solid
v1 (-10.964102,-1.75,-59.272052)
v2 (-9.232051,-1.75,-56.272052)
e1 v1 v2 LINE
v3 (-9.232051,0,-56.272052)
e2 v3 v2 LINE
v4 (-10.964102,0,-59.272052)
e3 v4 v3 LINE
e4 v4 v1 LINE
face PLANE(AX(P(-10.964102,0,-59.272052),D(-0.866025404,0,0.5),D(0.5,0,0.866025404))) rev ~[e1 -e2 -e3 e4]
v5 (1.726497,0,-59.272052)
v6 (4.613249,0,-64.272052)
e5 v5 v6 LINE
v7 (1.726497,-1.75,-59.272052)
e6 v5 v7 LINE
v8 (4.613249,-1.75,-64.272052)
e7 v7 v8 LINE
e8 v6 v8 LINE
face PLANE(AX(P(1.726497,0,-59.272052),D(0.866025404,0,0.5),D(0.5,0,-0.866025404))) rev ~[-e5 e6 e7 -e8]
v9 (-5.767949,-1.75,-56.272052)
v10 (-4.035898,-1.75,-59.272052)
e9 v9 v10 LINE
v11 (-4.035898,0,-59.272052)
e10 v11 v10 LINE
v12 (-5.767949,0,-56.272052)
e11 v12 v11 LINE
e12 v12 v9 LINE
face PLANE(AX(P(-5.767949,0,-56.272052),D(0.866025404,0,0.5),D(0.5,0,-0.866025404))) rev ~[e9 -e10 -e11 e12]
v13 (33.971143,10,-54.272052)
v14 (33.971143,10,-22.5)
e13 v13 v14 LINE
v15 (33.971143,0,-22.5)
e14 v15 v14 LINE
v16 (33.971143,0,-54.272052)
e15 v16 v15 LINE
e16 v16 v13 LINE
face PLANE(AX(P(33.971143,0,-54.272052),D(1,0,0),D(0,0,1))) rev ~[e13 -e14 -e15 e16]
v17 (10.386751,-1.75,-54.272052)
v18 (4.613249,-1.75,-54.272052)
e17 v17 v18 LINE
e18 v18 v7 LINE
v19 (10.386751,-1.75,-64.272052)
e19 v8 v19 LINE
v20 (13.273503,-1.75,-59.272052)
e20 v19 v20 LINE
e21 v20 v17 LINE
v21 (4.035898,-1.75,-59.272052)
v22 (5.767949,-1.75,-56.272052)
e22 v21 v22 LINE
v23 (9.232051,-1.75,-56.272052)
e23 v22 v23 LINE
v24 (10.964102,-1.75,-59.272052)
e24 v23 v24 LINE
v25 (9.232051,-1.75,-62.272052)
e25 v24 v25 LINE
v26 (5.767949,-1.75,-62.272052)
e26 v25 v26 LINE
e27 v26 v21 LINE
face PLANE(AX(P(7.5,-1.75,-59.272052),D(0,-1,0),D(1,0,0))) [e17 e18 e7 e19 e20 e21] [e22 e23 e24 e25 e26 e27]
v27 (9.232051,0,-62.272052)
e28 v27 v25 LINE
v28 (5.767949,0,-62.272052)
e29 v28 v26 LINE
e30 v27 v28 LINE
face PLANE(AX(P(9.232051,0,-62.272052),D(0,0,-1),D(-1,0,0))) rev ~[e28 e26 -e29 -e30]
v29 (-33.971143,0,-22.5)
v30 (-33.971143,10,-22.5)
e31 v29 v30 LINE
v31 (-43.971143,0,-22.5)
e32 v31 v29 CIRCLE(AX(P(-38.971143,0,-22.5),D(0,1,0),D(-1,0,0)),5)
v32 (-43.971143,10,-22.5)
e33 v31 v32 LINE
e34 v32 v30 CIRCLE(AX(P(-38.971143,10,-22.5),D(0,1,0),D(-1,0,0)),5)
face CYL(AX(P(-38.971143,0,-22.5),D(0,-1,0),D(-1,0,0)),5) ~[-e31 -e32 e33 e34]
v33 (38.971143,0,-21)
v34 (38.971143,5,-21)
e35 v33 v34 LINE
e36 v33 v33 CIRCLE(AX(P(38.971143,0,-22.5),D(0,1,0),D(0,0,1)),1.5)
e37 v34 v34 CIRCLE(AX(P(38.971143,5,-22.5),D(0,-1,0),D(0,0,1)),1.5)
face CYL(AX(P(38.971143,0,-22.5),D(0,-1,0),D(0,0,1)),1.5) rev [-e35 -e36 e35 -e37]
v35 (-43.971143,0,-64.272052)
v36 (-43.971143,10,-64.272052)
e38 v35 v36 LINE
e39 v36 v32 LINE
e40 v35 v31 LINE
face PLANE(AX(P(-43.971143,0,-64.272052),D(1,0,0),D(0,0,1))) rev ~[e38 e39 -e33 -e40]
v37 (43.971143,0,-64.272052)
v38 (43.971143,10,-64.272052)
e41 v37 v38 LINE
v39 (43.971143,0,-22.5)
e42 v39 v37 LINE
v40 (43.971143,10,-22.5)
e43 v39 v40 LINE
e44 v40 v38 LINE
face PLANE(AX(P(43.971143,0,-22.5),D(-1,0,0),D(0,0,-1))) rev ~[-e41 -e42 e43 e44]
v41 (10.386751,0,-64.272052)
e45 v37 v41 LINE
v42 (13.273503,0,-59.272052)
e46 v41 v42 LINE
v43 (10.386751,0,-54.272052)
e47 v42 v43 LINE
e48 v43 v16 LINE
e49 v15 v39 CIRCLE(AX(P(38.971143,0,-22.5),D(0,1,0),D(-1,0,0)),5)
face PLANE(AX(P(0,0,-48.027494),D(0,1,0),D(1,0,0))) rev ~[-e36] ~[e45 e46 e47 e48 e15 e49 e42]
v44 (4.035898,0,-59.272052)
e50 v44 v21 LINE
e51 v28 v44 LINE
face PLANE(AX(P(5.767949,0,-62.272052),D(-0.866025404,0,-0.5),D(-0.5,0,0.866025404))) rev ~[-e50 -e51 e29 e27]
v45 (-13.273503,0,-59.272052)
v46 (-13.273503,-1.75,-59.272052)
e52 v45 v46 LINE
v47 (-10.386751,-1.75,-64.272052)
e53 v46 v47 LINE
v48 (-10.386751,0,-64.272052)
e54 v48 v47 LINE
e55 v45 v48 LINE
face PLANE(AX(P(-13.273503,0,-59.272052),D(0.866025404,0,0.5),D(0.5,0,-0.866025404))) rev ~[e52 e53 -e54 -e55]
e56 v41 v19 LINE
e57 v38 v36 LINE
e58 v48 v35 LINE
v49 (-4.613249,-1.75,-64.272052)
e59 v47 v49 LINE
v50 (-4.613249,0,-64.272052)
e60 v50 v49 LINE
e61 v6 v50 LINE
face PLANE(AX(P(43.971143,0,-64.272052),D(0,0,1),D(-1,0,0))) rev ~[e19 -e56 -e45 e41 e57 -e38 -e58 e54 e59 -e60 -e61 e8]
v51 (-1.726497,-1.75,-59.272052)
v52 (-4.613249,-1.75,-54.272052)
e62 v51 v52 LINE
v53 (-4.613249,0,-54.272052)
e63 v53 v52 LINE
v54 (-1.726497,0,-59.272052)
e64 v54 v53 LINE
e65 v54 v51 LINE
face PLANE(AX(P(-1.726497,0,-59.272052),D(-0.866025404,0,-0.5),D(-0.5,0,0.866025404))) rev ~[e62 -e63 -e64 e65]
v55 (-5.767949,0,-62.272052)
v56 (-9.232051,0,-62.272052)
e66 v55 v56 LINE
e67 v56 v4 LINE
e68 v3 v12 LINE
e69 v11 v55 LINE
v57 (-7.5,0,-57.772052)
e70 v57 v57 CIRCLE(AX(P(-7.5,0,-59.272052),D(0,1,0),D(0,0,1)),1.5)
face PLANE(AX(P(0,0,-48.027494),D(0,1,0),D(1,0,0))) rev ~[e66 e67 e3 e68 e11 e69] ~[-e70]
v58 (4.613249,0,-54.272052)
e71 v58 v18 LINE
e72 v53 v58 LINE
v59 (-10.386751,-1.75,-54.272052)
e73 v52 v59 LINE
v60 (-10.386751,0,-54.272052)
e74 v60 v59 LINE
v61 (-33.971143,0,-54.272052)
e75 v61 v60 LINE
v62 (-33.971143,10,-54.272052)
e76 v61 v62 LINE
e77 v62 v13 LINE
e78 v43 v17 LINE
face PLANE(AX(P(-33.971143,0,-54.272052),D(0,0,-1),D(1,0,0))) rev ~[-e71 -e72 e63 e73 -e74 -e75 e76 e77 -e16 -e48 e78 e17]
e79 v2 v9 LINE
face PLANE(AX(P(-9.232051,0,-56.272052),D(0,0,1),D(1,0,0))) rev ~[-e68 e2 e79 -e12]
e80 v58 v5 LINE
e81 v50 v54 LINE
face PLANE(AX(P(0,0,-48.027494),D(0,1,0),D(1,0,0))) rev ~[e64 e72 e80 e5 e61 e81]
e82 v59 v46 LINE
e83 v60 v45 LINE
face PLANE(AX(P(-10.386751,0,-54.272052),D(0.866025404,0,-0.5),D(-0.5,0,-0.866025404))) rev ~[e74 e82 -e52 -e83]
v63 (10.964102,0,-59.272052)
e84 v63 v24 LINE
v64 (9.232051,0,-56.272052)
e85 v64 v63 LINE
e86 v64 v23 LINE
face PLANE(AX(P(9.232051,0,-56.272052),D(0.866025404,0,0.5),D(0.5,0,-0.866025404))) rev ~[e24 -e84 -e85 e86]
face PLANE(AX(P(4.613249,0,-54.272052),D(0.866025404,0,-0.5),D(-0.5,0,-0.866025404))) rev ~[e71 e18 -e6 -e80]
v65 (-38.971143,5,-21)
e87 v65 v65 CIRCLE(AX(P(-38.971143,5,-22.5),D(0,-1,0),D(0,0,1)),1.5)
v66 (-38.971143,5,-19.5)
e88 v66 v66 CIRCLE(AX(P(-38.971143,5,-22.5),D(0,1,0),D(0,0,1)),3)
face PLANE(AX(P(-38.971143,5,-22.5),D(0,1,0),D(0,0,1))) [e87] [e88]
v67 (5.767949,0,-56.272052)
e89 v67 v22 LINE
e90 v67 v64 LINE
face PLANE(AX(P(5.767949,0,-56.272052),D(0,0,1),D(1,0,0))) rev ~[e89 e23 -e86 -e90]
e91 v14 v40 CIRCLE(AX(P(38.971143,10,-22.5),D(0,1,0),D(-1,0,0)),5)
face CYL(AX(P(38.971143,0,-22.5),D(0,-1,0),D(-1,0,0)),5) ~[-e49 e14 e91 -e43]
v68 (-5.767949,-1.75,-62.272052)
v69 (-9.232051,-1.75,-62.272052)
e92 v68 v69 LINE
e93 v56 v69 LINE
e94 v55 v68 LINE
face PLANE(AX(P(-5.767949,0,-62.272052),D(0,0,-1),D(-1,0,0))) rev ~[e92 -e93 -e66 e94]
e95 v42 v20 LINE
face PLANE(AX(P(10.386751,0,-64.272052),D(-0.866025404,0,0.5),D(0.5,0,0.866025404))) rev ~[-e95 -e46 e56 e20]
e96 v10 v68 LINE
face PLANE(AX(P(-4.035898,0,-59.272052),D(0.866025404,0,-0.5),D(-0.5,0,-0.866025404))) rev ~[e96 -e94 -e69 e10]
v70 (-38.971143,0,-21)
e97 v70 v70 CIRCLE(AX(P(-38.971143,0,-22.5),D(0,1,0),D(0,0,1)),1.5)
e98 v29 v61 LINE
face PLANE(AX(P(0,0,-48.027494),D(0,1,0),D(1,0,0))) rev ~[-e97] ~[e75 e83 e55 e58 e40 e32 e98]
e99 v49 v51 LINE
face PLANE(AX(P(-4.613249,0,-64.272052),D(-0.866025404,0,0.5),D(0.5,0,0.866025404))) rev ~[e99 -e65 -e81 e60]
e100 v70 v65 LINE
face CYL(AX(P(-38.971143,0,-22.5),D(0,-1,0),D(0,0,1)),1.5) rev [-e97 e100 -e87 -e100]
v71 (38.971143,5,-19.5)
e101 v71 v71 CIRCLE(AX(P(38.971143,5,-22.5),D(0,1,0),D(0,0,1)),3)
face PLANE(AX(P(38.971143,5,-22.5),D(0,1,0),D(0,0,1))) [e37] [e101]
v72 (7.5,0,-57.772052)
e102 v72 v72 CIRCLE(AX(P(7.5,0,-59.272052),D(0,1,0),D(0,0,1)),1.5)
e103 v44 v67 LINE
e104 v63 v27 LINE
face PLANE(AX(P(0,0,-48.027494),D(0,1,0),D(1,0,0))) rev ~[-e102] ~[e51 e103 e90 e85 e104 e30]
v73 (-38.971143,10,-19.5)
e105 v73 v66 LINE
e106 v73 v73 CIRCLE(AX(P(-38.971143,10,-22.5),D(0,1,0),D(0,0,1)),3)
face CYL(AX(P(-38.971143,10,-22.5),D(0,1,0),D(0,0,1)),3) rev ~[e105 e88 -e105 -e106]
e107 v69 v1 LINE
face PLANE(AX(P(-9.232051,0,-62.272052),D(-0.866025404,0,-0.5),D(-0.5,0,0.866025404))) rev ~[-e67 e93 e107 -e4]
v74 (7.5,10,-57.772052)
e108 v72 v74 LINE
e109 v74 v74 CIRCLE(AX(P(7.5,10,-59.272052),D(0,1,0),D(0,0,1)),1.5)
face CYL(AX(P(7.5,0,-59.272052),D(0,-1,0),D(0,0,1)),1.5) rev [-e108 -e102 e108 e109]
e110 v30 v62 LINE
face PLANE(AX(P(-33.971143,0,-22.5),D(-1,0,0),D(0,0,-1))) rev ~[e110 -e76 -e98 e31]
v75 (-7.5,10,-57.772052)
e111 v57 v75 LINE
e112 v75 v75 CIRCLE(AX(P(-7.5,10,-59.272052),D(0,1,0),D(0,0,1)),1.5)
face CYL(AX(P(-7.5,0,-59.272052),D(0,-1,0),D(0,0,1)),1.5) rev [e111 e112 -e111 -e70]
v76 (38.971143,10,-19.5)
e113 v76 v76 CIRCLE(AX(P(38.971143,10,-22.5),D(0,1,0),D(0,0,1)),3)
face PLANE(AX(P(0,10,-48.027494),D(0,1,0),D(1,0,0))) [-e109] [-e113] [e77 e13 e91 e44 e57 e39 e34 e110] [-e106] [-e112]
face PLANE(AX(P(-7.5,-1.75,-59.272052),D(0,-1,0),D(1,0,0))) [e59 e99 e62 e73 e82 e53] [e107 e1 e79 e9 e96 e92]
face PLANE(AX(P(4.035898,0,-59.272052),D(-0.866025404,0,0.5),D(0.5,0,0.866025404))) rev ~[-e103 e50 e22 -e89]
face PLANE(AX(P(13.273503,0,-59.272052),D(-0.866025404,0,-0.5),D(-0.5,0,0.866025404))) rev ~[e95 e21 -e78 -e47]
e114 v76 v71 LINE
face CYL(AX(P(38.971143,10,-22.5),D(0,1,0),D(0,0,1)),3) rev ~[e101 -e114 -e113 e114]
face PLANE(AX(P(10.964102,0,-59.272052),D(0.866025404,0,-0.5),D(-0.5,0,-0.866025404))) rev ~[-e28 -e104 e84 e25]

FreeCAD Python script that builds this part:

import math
import FreeCAD as App
import Part
import Sketcher

V = App.Vector
Q = App.Units.Quantity

doc = App.newDocument("Part")
params = doc.addObject("Spreadsheet::Sheet", "Params")
for row, (alias, value) in enumerate([
    ("sketch1_diameter", "3 mm"),
    ("sketch1_radius", "5 mm"),
    ("pad1_length", "10 mm"),
    ("pad2_length", "1.75 mm"),
    ("sketch3_diameter", "6 mm"),
    ("pocket1_length", "5 mm"),
], start=1):
    params.set(f"A{row}", alias)
    params.set(f"B{row}", "=" + value)
    params.setAlias(f"B{row}", alias)

body = doc.addObject("PartDesign::Body", "Body")

sketch1 = body.newObject("Sketcher::SketchObject", "Sketch")
sketch1.AttachmentSupport = (doc.getObject("XZ_Plane"), [""])
sketch1.MapMode = "FlatFace"
sketch1.addGeometry([
    Part.ArcOfCircle(Part.Circle(V(-39, -22.5, 0), V(0, 0, 1), 5), math.radians(0), math.radians(180)),
    Part.LineSegment(V(-34, -22.5, 0), V(-34, -54.3, 0)),
    Part.LineSegment(V(-34, -54.3, 0), V(34, -54.3, 0)),
    Part.LineSegment(V(34, -54.3, 0), V(34, -22.5, 0)),
    Part.ArcOfCircle(Part.Circle(V(39, -22.5, 0), V(0, 0, 1), 5), math.radians(0), math.radians(180)),
    Part.LineSegment(V(44, -22.5, 0), V(44, -64.3, 0)),
    Part.LineSegment(V(44, -64.3, 0), V(-44, -64.3, 0)),
    Part.LineSegment(V(-44, -64.3, 0), V(-44, -22.5, 0)),
    Part.Circle(V(-39, -22.5, 0), V(0, 0, 1), 1.5),
    Part.Circle(V(39, -22.5, 0), V(0, 0, 1), 1.5),
    Part.Circle(V(-7.5, -59.3, 0), V(0, 0, 1), 1.5),
    Part.Circle(V(7.5, -59.3, 0), V(0, 0, 1), 1.5),
], False)
sketch1.addConstraint([
    Sketcher.Constraint("Tangent", 0, 1, 1, 1),
    Sketcher.Constraint("Coincident", 1, 2, 2, 1),
    Sketcher.Constraint("Coincident", 2, 2, 3, 1),
    Sketcher.Constraint("Tangent", 3, 2, 4, 2),
    Sketcher.Constraint("Tangent", 4, 1, 5, 1),
    Sketcher.Constraint("Coincident", 5, 2, 6, 1),
    Sketcher.Constraint("Coincident", 6, 2, 7, 1),
    Sketcher.Constraint("Tangent", 7, 2, 0, 2),
    Sketcher.Constraint("Vertical", 1),
    Sketcher.Constraint("Horizontal", 2),
    Sketcher.Constraint("Vertical", 3),
    Sketcher.Constraint("Vertical", 5),
    Sketcher.Constraint("Horizontal", 6),
    Sketcher.Constraint("Vertical", 7),
    Sketcher.Constraint("Coincident", 8, 3, 0, 3),
    Sketcher.Constraint("Coincident", 9, 3, 4, 3),
    Sketcher.Constraint("Equal", 0, 4),
    Sketcher.Constraint("Equal", 8, 9),
    Sketcher.Constraint("Equal", 9, 10),
    Sketcher.Constraint("Equal", 10, 11),
    Sketcher.Constraint("Symmetric", 0, 3, 4, 3, -2),
    Sketcher.Constraint("Symmetric", 10, 3, 11, 3, -2),
    Sketcher.Constraint("Diameter", 8, 3.0),
    Sketcher.Constraint("Radius", 0, 5.0),
    Sketcher.Constraint("DistanceX", 10, 3, 11, 3, 15.0),
    Sketcher.Constraint("DistanceY", 10, 3, 1, 2, 5.0),
    Sketcher.Constraint("DistanceY", 5, 2, 2, 2, 10.0),
    Sketcher.Constraint("DistanceY", 0, 3, -1, 1, 22.5),
    Sketcher.Constraint("DistanceX", 2, 1, 2, 2, 67.942286),
    Sketcher.Constraint("DistanceY", 1, 2, 1, 1, 31.772052),
])
sketch1.setExpression("Constraints[22]", "Params.sketch1_diameter")
sketch1.setExpression("Constraints[23]", "Params.sketch1_radius")
pad1 = body.newObject("PartDesign::Pad", "Pad")
pad1.Profile = sketch1
pad1.setExpression("Length", "Params.pad1_length")
pad1.Reversed = True

sketch2 = body.newObject("Sketcher::SketchObject", "Sketch001")
sketch2.AttachmentSupport = (doc.getObject("XZ_Plane"), [""])
sketch2.MapMode = "FlatFace"
sketch2.addGeometry([
    Part.LineSegment(V(-1.7, -59.3, 0), V(-4.6, -54.3, 0)),
    Part.LineSegment(V(-4.6, -54.3, 0), V(-10.4, -54.3, 0)),
    Part.LineSegment(V(-10.4, -54.3, 0), V(-13.3, -59.3, 0)),
    Part.LineSegment(V(-13.3, -59.3, 0), V(-10.4, -64.3, 0)),
    Part.LineSegment(V(-10.4, -64.3, 0), V(-4.6, -64.3, 0)),
    Part.LineSegment(V(-4.6, -64.3, 0), V(-1.7, -59.3, 0)),
    Part.LineSegment(V(-11, -59.3, 0), V(-9.2, -56.3, 0)),
    Part.LineSegment(V(-9.2, -56.3, 0), V(-5.8, -56.3, 0)),
    Part.LineSegment(V(-5.8, -56.3, 0), V(-4, -59.3, 0)),
    Part.LineSegment(V(-4, -59.3, 0), V(-5.8, -62.3, 0)),
    Part.LineSegment(V(-5.8, -62.3, 0), V(-9.2, -62.3, 0)),
    Part.LineSegment(V(-9.2, -62.3, 0), V(-11, -59.3, 0)),
    Part.LineSegment(V(10.4, -54.3, 0), V(4.6, -54.3, 0)),
    Part.LineSegment(V(4.6, -54.3, 0), V(1.7, -59.3, 0)),
    Part.LineSegment(V(1.7, -59.3, 0), V(4.6, -64.3, 0)),
    Part.LineSegment(V(4.6, -64.3, 0), V(10.4, -64.3, 0)),
    Part.LineSegment(V(10.4, -64.3, 0), V(13.3, -59.3, 0)),
    Part.LineSegment(V(13.3, -59.3, 0), V(10.4, -54.3, 0)),
    Part.LineSegment(V(4, -59.3, 0), V(5.8, -56.3, 0)),
    Part.LineSegment(V(5.8, -56.3, 0), V(9.2, -56.3, 0)),
    Part.LineSegment(V(9.2, -56.3, 0), V(11, -59.3, 0)),
    Part.LineSegment(V(11, -59.3, 0), V(9.2, -62.3, 0)),
    Part.LineSegment(V(9.2, -62.3, 0), V(5.8, -62.3, 0)),
    Part.LineSegment(V(5.8, -62.3, 0), V(4, -59.3, 0)),
], False)
sketch2.addConstraint([
    Sketcher.Constraint("Coincident", 0, 2, 1, 1),
    Sketcher.Constraint("Coincident", 1, 2, 2, 1),
    Sketcher.Constraint("Coincident", 2, 2, 3, 1),
    Sketcher.Constraint("Coincident", 3, 2, 4, 1),
    Sketcher.Constraint("Coincident", 4, 2, 5, 1),
    Sketcher.Constraint("Coincident", 5, 2, 0, 1),
    Sketcher.Constraint("Coincident", 6, 2, 7, 1),
    Sketcher.Constraint("Coincident", 7, 2, 8, 1),
    Sketcher.Constraint("Coincident", 8, 2, 9, 1),
    Sketcher.Constraint("Coincident", 9, 2, 10, 1),
    Sketcher.Constraint("Coincident", 10, 2, 11, 1),
    Sketcher.Constraint("Coincident", 11, 2, 6, 1),
    Sketcher.Constraint("Coincident", 12, 2, 13, 1),
    Sketcher.Constraint("Coincident", 13, 2, 14, 1),
    Sketcher.Constraint("Coincident", 14, 2, 15, 1),
    Sketcher.Constraint("Coincident", 15, 2, 16, 1),
    Sketcher.Constraint("Coincident", 16, 2, 17, 1),
    Sketcher.Constraint("Coincident", 17, 2, 12, 1),
    Sketcher.Constraint("Coincident", 18, 2, 19, 1),
    Sketcher.Constraint("Coincident", 19, 2, 20, 1),
    Sketcher.Constraint("Coincident", 20, 2, 21, 1),
    Sketcher.Constraint("Coincident", 21, 2, 22, 1),
    Sketcher.Constraint("Coincident", 22, 2, 23, 1),
    Sketcher.Constraint("Coincident", 23, 2, 18, 1),
    Sketcher.Constraint("Horizontal", 1),
    Sketcher.Constraint("Horizontal", 4),
    Sketcher.Constraint("Horizontal", 7),
    Sketcher.Constraint("Horizontal", 10),
    Sketcher.Constraint("Horizontal", 12),
    Sketcher.Constraint("Horizontal", 15),
    Sketcher.Constraint("Horizontal", 19),
    Sketcher.Constraint("Horizontal", 22),
    Sketcher.Constraint("Symmetric", 0, 2, 12, 2, -2),
    Sketcher.Constraint("Symmetric", 5, 2, 13, 2, -2),
    Sketcher.Constraint("Symmetric", 4, 2, 14, 2, -2),
    Sketcher.Constraint("Symmetric", 2, 2, 16, 2, -2),
    Sketcher.Constraint("Symmetric", 7, 2, 18, 2, -2),
    Sketcher.Constraint("Symmetric", 11, 2, 20, 2, -2),
    Sketcher.Constraint("Symmetric", 10, 2, 21, 2, -2),
    Sketcher.Constraint("Symmetric", 8, 2, 23, 2, -2),
    Sketcher.Constraint("Parallel", 0, 3),
    Sketcher.Constraint("Parallel", 2, 5),
    Sketcher.Constraint("Parallel", 5, 6),
    Sketcher.Constraint("Parallel", 3, 8),
    Sketcher.Constraint("Parallel", 6, 9),
    Sketcher.Constraint("Parallel", 8, 11),
    Sketcher.Constraint("Parallel", 9, 13),
    Sketcher.Constraint("Parallel", 13, 16),
    Sketcher.Constraint("Parallel", 14, 17),
    Sketcher.Constraint("Parallel", 17, 20),
    Sketcher.Constraint("Parallel", 20, 23),
    Sketcher.Constraint("Horizontal", 2, 2, 5, 2),
    Sketcher.Constraint("Horizontal", 5, 2, 8, 2),
    Sketcher.Constraint("Horizontal", 8, 2, 11, 2),
    Sketcher.Constraint("Vertical", 1, 2, 3, 2),
    Sketcher.Constraint("Vertical", 7, 2, 9, 2),
    Sketcher.Constraint("Angle", 0, Q("120 deg")),
    Sketcher.Constraint("DistanceY", 2, 2, 1, 2, 5.0),
    Sketcher.Constraint("DistanceY", 6, 2, 1, 2, 2.0),
    Sketcher.Constraint("DistanceX", 4, 2, 15, 2, 15.0),
    Sketcher.Constraint("DistanceX", 7, 1, 7, 2, 3.464102),
    Sketcher.Constraint("DistanceX", 8, 2, -1, 1, 4.035898),
    Sketcher.Constraint("DistanceX", 1, 2, 6, 2, 1.154701),
    Sketcher.Constraint("DistanceY", 0, 2, -1, 1, 54.272052),
])
pad2 = body.newObject("PartDesign::Pad", "Pad001")
pad2.Profile = sketch2
pad2.setExpression("Length", "Params.pad2_length")

sketch3 = body.newObject("Sketcher::SketchObject", "Sketch002")
sketch3.AttachmentSupport = (doc.getObject("XZ_Plane"), [""])
sketch3.MapMode = "FlatFace"
sketch3.AttachmentOffset = App.Placement(V(0, 0, -10), App.Rotation())
sketch3.addGeometry([
    Part.Circle(V(-39, -22.5, 0), V(0, 0, 1), 3),
    Part.Circle(V(39, -22.5, 0), V(0, 0, 1), 3),
], False)
sketch3.addConstraint([
    Sketcher.Constraint("Equal", 0, 1),
    Sketcher.Constraint("Symmetric", 0, 3, 1, 3, -2),
    Sketcher.Constraint("Diameter", 0, 6.0),
    Sketcher.Constraint("DistanceY", 0, 3, -1, 1, 22.5),
    Sketcher.Constraint("DistanceX", 0, 3, -1, 1, 38.971143),
])
sketch3.setExpression("Constraints[2]", "Params.sketch3_diameter")
pocket1 = body.newObject("PartDesign::Pocket", "Pocket")
pocket1.Profile = sketch3
pocket1.setExpression("Length", "Params.pocket1_length")
pocket1.Reversed = True

doc.recompute()
